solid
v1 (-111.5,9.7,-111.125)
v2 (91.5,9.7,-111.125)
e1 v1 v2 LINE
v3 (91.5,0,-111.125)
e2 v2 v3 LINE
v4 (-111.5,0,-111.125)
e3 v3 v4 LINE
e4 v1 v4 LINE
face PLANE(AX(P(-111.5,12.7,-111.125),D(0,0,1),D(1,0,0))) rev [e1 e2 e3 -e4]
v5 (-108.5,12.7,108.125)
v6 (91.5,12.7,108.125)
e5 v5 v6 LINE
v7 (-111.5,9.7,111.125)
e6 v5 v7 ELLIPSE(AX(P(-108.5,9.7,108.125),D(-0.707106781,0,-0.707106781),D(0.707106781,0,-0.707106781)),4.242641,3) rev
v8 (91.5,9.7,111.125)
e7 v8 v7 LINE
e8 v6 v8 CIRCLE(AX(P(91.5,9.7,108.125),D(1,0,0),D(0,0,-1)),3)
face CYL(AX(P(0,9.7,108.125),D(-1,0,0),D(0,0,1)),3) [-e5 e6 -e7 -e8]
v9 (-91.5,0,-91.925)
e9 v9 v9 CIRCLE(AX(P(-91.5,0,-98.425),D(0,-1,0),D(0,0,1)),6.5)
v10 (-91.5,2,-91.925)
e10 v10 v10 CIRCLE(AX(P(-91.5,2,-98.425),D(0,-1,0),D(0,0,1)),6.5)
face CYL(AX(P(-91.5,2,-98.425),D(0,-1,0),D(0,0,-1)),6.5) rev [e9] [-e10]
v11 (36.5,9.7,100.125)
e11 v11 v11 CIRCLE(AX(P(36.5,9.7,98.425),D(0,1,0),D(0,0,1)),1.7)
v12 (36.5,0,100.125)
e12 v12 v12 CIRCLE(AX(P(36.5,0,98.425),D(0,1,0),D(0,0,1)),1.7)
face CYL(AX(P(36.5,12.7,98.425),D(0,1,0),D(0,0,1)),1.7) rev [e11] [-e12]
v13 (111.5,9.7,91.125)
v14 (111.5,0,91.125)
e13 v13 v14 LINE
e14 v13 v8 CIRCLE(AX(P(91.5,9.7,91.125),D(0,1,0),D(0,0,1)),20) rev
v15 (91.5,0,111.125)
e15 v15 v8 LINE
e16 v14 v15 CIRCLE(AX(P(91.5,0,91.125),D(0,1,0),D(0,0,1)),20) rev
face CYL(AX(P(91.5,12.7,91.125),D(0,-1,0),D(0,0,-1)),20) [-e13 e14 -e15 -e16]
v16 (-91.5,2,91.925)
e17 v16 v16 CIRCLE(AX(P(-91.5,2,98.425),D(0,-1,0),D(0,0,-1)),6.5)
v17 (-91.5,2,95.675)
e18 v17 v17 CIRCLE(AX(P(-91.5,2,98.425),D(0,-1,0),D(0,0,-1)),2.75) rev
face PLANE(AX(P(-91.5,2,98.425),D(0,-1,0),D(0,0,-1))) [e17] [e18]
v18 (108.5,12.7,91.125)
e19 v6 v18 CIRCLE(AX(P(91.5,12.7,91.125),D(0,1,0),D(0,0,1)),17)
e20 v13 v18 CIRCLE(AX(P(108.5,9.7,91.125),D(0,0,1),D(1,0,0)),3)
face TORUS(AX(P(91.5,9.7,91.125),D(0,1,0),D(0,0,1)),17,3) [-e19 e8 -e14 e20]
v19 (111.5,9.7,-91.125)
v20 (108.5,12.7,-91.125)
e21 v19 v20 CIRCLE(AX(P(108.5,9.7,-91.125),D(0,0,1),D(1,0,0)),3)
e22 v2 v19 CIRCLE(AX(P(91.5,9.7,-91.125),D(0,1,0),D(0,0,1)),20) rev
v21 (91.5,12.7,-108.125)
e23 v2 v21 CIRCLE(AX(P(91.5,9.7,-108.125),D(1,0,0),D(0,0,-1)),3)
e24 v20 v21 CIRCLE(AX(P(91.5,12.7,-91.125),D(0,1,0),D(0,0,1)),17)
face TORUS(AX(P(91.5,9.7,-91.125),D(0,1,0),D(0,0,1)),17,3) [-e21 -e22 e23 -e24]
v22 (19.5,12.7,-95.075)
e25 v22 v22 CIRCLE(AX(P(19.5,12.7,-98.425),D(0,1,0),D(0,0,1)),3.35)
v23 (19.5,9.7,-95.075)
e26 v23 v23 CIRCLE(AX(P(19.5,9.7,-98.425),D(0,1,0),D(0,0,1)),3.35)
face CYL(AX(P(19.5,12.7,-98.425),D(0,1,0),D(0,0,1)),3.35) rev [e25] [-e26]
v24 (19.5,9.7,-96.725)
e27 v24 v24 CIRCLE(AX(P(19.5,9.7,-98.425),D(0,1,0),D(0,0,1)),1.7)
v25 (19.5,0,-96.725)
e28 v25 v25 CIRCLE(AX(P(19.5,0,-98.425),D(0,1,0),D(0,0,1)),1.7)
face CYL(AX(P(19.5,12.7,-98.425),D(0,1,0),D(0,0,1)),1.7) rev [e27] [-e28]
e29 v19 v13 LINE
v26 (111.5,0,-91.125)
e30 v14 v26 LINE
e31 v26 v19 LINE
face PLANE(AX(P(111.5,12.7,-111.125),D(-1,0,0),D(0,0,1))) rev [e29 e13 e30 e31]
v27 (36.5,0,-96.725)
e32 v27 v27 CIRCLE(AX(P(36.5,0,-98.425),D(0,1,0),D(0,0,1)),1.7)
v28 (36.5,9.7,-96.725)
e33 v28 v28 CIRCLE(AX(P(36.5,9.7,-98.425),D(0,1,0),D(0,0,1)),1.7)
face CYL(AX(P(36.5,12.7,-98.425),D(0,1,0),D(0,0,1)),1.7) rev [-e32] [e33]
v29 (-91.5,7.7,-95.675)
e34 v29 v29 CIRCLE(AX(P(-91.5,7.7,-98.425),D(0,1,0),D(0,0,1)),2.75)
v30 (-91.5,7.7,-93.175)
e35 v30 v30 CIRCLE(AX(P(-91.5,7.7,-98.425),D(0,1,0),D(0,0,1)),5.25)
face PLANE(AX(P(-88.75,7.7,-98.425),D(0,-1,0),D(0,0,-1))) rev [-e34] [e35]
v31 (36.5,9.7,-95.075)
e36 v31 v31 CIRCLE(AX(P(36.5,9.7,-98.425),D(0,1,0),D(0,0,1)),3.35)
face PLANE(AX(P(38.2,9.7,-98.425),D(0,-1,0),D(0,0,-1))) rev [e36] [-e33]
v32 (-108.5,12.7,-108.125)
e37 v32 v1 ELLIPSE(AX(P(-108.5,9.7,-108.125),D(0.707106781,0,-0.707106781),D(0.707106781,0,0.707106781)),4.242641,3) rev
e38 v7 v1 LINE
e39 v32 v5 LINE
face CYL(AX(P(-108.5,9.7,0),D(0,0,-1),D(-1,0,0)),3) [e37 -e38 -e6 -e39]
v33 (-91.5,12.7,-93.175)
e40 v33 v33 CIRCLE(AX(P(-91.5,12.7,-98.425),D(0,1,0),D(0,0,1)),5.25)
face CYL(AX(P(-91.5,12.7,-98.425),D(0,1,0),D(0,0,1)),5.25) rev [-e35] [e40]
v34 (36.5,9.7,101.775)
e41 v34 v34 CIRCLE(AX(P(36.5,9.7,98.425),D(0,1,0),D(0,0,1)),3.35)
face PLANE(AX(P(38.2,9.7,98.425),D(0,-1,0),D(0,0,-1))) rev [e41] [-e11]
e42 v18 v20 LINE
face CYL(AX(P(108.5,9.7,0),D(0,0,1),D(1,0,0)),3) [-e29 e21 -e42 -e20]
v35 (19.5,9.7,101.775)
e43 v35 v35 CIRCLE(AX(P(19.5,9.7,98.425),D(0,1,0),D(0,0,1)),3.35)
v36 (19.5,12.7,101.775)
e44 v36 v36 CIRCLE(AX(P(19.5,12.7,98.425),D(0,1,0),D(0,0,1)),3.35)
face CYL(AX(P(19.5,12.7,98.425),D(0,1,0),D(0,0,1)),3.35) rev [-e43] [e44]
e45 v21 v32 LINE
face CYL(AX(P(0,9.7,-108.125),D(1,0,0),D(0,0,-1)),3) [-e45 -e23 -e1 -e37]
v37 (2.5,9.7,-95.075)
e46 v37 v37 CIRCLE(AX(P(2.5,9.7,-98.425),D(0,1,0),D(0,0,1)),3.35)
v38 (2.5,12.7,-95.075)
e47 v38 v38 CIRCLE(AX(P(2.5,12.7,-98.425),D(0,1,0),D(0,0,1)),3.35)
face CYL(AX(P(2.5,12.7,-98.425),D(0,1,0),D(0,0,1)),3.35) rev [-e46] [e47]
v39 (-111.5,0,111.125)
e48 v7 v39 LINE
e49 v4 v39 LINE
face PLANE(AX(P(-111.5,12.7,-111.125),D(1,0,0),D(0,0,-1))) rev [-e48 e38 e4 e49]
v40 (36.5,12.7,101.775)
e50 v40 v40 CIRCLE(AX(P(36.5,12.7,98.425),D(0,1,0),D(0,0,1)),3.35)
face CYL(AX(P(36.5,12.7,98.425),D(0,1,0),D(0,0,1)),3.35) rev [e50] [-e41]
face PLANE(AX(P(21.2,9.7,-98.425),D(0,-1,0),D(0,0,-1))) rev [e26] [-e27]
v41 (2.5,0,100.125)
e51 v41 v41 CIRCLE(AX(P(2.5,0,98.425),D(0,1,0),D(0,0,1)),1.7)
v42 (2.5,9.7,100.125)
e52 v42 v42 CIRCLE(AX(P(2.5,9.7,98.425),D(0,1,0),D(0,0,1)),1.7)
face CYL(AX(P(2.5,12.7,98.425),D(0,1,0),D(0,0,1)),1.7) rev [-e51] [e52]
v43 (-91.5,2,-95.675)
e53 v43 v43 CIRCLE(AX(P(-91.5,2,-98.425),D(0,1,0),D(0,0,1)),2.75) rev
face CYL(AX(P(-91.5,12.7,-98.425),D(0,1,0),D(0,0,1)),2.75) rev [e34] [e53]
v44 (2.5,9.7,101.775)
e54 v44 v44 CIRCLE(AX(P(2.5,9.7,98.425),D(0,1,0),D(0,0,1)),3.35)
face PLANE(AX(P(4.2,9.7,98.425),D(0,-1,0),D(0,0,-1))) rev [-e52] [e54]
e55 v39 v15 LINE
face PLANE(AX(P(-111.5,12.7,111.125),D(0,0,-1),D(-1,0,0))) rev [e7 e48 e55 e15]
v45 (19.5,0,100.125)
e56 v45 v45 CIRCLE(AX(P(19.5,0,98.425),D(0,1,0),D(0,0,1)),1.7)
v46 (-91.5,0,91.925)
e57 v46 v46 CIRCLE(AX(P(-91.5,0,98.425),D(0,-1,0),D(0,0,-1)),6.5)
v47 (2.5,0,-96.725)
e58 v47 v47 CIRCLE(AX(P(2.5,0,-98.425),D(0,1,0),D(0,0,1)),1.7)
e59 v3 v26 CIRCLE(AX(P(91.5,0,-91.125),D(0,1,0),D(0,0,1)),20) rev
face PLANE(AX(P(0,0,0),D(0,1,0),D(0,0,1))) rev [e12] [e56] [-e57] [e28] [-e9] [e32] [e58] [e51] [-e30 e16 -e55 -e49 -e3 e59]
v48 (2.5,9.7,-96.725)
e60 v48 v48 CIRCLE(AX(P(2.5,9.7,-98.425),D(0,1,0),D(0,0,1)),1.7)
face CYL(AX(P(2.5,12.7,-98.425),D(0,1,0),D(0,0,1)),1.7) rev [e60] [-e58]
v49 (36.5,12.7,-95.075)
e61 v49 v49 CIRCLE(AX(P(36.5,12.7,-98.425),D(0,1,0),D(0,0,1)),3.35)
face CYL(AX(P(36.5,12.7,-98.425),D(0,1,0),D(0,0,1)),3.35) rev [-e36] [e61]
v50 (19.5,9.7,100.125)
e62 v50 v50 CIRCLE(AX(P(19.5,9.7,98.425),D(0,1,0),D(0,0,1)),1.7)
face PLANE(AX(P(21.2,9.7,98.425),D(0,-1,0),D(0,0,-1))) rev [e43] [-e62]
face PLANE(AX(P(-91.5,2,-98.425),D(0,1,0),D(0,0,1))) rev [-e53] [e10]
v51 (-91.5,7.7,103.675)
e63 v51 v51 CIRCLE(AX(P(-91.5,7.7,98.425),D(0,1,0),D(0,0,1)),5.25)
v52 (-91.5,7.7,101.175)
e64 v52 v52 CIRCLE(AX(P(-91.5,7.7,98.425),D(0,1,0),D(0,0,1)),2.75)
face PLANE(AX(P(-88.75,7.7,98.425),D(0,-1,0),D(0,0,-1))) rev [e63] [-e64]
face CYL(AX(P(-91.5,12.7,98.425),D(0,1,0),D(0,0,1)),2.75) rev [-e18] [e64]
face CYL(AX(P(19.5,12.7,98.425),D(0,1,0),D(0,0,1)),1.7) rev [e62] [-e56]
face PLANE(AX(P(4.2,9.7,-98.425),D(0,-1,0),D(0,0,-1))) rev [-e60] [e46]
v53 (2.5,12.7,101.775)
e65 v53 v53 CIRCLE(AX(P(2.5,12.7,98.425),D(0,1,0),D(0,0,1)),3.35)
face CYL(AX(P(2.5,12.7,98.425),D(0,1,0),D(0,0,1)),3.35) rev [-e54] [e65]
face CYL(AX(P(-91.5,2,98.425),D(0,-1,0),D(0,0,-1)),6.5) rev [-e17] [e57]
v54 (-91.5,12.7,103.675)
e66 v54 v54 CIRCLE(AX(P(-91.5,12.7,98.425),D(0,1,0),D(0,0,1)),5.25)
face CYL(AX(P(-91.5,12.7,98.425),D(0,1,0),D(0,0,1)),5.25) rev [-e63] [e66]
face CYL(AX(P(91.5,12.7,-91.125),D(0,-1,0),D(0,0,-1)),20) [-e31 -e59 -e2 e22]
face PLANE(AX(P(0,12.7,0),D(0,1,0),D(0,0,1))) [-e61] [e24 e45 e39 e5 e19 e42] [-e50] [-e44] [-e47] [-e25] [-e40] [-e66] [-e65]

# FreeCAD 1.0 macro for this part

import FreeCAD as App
import Part
import Sketcher
from FreeCAD import Vector


def edges_at(feature, points):
    """Names of the edges that pass closest to the given points."""
    edges = feature.Shape.Edges
    near = lambda p: min(range(len(edges)), key=lambda i: edges[i].distToShape(Part.Vertex(*p))[0])
    return sorted({f"Edge{near(p) + 1}" for p in points})

doc = App.newDocument("Part")
body = doc.addObject("PartDesign::Body", "Body")

# Sketch on XZ plane
sketch1 = body.newObject("Sketcher::SketchObject", "Sketch")
sketch1.AttachmentSupport = (doc.getObject("XZ_Plane"), [""])
sketch1.MapMode = "FlatFace"
sketch1.addGeometry([
    Part.LineSegment(Vector(-112, -111, 0), Vector(-112, 111, 0)),
    Part.LineSegment(Vector(-112, 111, 0), Vector(112, 111, 0)),
    Part.LineSegment(Vector(112, 111, 0), Vector(112, -111, 0)),
    Part.LineSegment(Vector(112, -111, 0), Vector(-112, -111, 0)),
], False)
sketch1.addConstraint([
    Sketcher.Constraint("Coincident", 0, 2, 1, 1),
    Sketcher.Constraint("Coincident", 1, 2, 2, 1),
    Sketcher.Constraint("Coincident", 2, 2, 3, 1),
    Sketcher.Constraint("Coincident", 3, 2, 0, 1),
    Sketcher.Constraint("Vertical", 0),
    Sketcher.Constraint("Horizontal", 1),
    Sketcher.Constraint("Vertical", 2),
    Sketcher.Constraint("Horizontal", 3),
    Sketcher.Constraint("Symmetric", 0, 2, 2, 2, -1, 1),
    Sketcher.Constraint("DistanceX", 1, 1, 1, 2, 223.0),
    Sketcher.Constraint("DistanceY", 0, 1, 0, 2, 222.25),
])
pad1 = body.newObject("PartDesign::Pad", "Pad")
pad1.Profile = sketch1
pad1.Length = 12.7
pad1.Reversed = True
doc.recompute()

fillet = body.newObject("PartDesign::Fillet", "Fillet")
fillet.Base = (pad1, edges_at(pad1, [(111.5, 6.35, 111.125), (111.5, 6.35, -111.125)]))
fillet.Radius = 20
doc.recompute()

fillet2 = body.newObject("PartDesign::Fillet", "Fillet001")
fillet2.Base = (fillet, edges_at(fillet, [
    (-111.5, 12.7, 0),
    (-10, 12.7, -111.125),
    (-10, 12.7, 111.125),
    (111.5, 12.7, 0),
    (105.642, 12.7, 105.267),
    (105.642, 12.7, -105.267),
]))
fillet2.Radius = 3

# Sketch on XZ plane
sketch2 = body.newObject("Sketcher::SketchObject", "Sketch001")
sketch2.AttachmentSupport = (doc.getObject("XZ_Plane"), [""])
sketch2.MapMode = "FlatFace"
sketch2.AttachmentOffset = App.Placement(Vector(0, 0, -12.7), App.Rotation())
sketch2.addGeometry([
    Part.Circle(Vector(36.5, 98.4, 0), Vector(0, 0, 1), 1.7),  # 0
    Part.Circle(Vector(36.5, -98.4, 0), Vector(0, 0, 1), 1.7),  # 1
    Part.Circle(Vector(19.5, 98.4, 0), Vector(0, 0, 1), 1.7),  # 2
    Part.Circle(Vector(19.5, -98.4, 0), Vector(0, 0, 1), 1.7),  # 3
    Part.Circle(Vector(2.5, 98.4, 0), Vector(0, 0, 1), 1.7),  # 4
    Part.Circle(Vector(2.5, -98.4, 0), Vector(0, 0, 1), 1.7),  # 5
], False)
sketch2.addConstraint([
    Sketcher.Constraint("Equal", 0, 1),
    Sketcher.Constraint("Equal", 1, 2),
    Sketcher.Constraint("Equal", 2, 3),
    Sketcher.Constraint("Equal", 3, 4),
    Sketcher.Constraint("Equal", 4, 5),
    Sketcher.Constraint("Symmetric", 0, 3, 1, 3, -1),
    Sketcher.Constraint("Symmetric", 2, 3, 3, 3, -1),
    Sketcher.Constraint("Symmetric", 4, 3, 5, 3, -1),
    Sketcher.Constraint("Horizontal", 0, 3, 2, 3),
    Sketcher.Constraint("Horizontal", 2, 3, 4, 3),
    Sketcher.Constraint("Diameter", 0, 3.4),
    Sketcher.Constraint("DistanceX", 2, 3, 0, 3, 17.0),
    Sketcher.Constraint("DistanceX", 4, 3, 2, 3, 17.0),
    Sketcher.Constraint("DistanceX", -1, 1, 0, 3, 36.5),
    Sketcher.Constraint("DistanceY", 1, 3, 0, 3, 196.85),
])
doc.recompute()
hole = body.newObject("PartDesign::Hole", "Hole")
hole.Profile = sketch2
hole.ThreadType = "None"
hole.Diameter = 3.4
hole.DepthType = "Dimension"
hole.Depth = 12.7
hole.DrillPoint = "Flat"
hole.HoleCutType = "Counterbore"
hole.HoleCutDiameter = 6.7
hole.HoleCutDepth = 3
hole.Reversed = True

# Sketch on XZ plane
sketch3 = body.newObject("Sketcher::SketchObject", "Sketch002")
sketch3.AttachmentSupport = (doc.getObject("XZ_Plane"), [""])
sketch3.MapMode = "FlatFace"
sketch3.AttachmentOffset = App.Placement(Vector(0, 0, -12.7), App.Rotation())
sketch3.addGeometry([
    Part.Circle(Vector(-91.5, -98.4, 0), Vector(0, 0, 1), 2.8),
    Part.Circle(Vector(-91.5, 98.4, 0), Vector(0, 0, 1), 2.8),
], False)
sketch3.addConstraint([
    Sketcher.Constraint("Equal", 0, 1),
    Sketcher.Constraint("Symmetric", 0, 3, 1, 3, -1),
    Sketcher.Constraint("Diameter", 0, 5.5),
    Sketcher.Constraint("DistanceX", 0, 3, -1, 1, 91.5),
    Sketcher.Constraint("DistanceY", 0, 3, 1, 3, 196.85),
])
doc.recompute()
hole2 = body.newObject("PartDesign::Hole", "Hole001")
hole2.Profile = sketch3
hole2.ThreadType = "None"
hole2.Diameter = 5.5
hole2.DepthType = "Dimension"
hole2.Depth = 12.7
hole2.DrillPoint = "Flat"
hole2.HoleCutType = "Counterbore"
hole2.HoleCutDiameter = 10.5
hole2.HoleCutDepth = 5
hole2.Reversed = True

# Sketch on XZ plane
sketch4 = body.newObject("Sketcher::SketchObject", "Sketch003")
sketch4.AttachmentSupport = (doc.getObject("XZ_Plane"), [""])
sketch4.MapMode = "FlatFace"
sketch4.addGeometry([
    Part.Circle(Vector(-92, 98, 0), Vector(0, 0, 1), 6),
    Part.Circle(Vector(-92, -98, 0), Vector(0, 0, 1), 6),
], False)
sketch4.addConstraint([
    Sketcher.Constraint("Equal", 0, 1),
    Sketcher.Constraint("Symmetric", 0, 3, 1, 3, -1),
    Sketcher.Constraint("Diameter", 0, 13.0),
    Sketcher.Constraint("DistanceX", 0, 3, -1, 1, 91.5),
    Sketcher.Constraint("DistanceY", 1, 3, 0, 3, 196.85),
])
pocket1 = body.newObject("PartDesign::Pocket", "Pocket")
pocket1.Profile = sketch4
pocket1.Length = 2

doc.recompute()
